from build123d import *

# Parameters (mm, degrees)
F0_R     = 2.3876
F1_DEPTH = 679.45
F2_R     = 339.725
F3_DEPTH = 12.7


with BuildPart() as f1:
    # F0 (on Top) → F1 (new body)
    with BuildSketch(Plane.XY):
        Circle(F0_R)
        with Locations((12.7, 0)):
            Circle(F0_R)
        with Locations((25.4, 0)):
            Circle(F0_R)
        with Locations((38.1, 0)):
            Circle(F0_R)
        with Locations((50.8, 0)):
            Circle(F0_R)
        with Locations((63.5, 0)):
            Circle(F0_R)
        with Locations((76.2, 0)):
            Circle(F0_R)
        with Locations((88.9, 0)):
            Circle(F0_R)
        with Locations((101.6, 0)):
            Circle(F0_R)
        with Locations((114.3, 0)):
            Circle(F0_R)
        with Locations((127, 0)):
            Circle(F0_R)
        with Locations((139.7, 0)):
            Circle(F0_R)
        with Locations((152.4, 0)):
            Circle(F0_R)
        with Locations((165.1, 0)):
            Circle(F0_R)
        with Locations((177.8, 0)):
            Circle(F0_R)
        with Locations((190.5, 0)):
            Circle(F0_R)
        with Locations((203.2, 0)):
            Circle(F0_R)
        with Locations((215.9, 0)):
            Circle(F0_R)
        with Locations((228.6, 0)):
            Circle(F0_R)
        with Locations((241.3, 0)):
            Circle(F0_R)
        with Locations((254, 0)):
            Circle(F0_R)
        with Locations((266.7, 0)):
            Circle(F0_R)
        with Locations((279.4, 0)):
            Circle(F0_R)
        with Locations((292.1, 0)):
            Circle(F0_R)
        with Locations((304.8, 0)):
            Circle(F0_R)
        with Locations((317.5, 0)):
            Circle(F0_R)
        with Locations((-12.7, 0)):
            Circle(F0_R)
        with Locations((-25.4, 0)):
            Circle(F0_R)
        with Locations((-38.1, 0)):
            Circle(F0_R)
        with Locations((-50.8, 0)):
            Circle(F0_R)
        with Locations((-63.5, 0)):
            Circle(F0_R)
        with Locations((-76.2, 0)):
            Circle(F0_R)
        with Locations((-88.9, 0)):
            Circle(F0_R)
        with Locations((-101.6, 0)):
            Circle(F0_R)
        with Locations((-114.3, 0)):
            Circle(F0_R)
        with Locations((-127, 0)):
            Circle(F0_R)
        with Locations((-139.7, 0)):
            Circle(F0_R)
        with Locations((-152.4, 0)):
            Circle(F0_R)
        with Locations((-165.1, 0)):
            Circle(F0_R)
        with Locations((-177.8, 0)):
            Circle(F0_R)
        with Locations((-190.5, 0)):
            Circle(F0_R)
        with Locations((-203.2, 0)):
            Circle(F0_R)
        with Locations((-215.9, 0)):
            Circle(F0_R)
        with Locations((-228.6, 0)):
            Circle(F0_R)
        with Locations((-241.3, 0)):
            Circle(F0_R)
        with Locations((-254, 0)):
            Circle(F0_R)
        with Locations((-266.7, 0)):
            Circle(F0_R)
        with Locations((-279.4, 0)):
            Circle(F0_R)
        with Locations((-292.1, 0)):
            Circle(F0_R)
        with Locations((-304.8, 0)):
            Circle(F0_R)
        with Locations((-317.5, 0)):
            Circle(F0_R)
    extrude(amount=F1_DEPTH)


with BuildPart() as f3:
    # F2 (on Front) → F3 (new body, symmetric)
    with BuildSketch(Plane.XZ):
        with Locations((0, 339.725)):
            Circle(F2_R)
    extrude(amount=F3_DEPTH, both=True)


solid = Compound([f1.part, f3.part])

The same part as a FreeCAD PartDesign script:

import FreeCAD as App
import Part
import Sketcher

V = App.Vector
Q = App.Units.Quantity

doc = App.newDocument("Part")
body = doc.addObject("PartDesign::Body", "Body")
body.AllowCompound = True

# Sketch on XY plane
sketch1 = body.newObject("Sketcher::SketchObject", "Sketch")
sketch1.AttachmentSupport = (doc.getObject("XY_Plane"), [""])
sketch1.MapMode = "FlatFace"
sketch1.addGeometry([
    Part.Circle(V(0, 0, 0), V(0, 0, 1), 2.4),  # 0
    Part.Circle(V(12.7, 0, 0), V(0, 0, 1), 2.4),  # 1
    Part.Circle(V(25.4, 0, 0), V(0, 0, 1), 2.4),  # 2
    Part.Circle(V(38.1, 0, 0), V(0, 0, 1), 2.4),  # 3
    Part.Circle(V(50.8, 0, 0), V(0, 0, 1), 2.4),  # 4
    Part.Circle(V(63.5, 0, 0), V(0, 0, 1), 2.4),  # 5
    Part.Circle(V(76.2, 0, 0), V(0, 0, 1), 2.4),  # 6
    Part.Circle(V(88.9, 0, 0), V(0, 0, 1), 2.4),  # 7
    Part.Circle(V(101.6, 0, 0), V(0, 0, 1), 2.4),  # 8
    Part.Circle(V(114.3, 0, 0), V(0, 0, 1), 2.4),  # 9
    Part.Circle(V(127, 0, 0), V(0, 0, 1), 2.4),  # 10
    Part.Circle(V(139.7, 0, 0), V(0, 0, 1), 2.4),  # 11
    Part.Circle(V(152.4, 0, 0), V(0, 0, 1), 2.4),  # 12
    Part.Circle(V(165.1, 0, 0), V(0, 0, 1), 2.4),  # 13
    Part.Circle(V(177.8, 0, 0), V(0, 0, 1), 2.4),  # 14
    Part.Circle(V(190.5, 0, 0), V(0, 0, 1), 2.4),  # 15
    Part.Circle(V(203.2, 0, 0), V(0, 0, 1), 2.4),  # 16
    Part.Circle(V(215.9, 0, 0), V(0, 0, 1), 2.4),  # 17
    Part.Circle(V(228.6, 0, 0), V(0, 0, 1), 2.4),  # 18
    Part.Circle(V(241.3, 0, 0), V(0, 0, 1), 2.4),  # 19
    Part.Circle(V(254, 0, 0), V(0, 0, 1), 2.4),  # 20
    Part.Circle(V(266.7, 0, 0), V(0, 0, 1), 2.4),  # 21
    Part.Circle(V(279.4, 0, 0), V(0, 0, 1), 2.4),  # 22
    Part.Circle(V(292.1, 0, 0), V(0, 0, 1), 2.4),  # 23
    Part.Circle(V(304.8, 0, 0), V(0, 0, 1), 2.4),  # 24
    Part.Circle(V(317.5, 0, 0), V(0, 0, 1), 2.4),  # 25
    Part.Circle(V(-12.7, 0, 0), V(0, 0, 1), 2.4),  # 26
    Part.Circle(V(-25.4, 0, 0), V(0, 0, 1), 2.4),  # 27
    Part.Circle(V(-38.1, 0, 0), V(0, 0, 1), 2.4),  # 28
    Part.Circle(V(-50.8, 0, 0), V(0, 0, 1), 2.4),  # 29
    Part.Circle(V(-63.5, 0, 0), V(0, 0, 1), 2.4),  # 30
    Part.Circle(V(-76.2, 0, 0), V(0, 0, 1), 2.4),  # 31
    Part.Circle(V(-88.9, 0, 0), V(0, 0, 1), 2.4),  # 32
    Part.Circle(V(-101.6, 0, 0), V(0, 0, 1), 2.4),  # 33
    Part.Circle(V(-114.3, 0, 0), V(0, 0, 1), 2.4),  # 34
    Part.Circle(V(-127, 0, 0), V(0, 0, 1), 2.4),  # 35
    Part.Circle(V(-139.7, 0, 0), V(0, 0, 1), 2.4),  # 36
    Part.Circle(V(-152.4, 0, 0), V(0, 0, 1), 2.4),  # 37
    Part.Circle(V(-165.1, 0, 0), V(0, 0, 1), 2.4),  # 38
    Part.Circle(V(-177.8, 0, 0), V(0, 0, 1), 2.4),  # 39
    Part.Circle(V(-190.5, 0, 0), V(0, 0, 1), 2.4),  # 40
    Part.Circle(V(-203.2, 0, 0), V(0, 0, 1), 2.4),  # 41
    Part.Circle(V(-215.9, 0, 0), V(0, 0, 1), 2.4),  # 42
    Part.Circle(V(-228.6, 0, 0), V(0, 0, 1), 2.4),  # 43
    Part.Circle(V(-241.3, 0, 0), V(0, 0, 1), 2.4),  # 44
    Part.Circle(V(-254, 0, 0), V(0, 0, 1), 2.4),  # 45
    Part.Circle(V(-266.7, 0, 0), V(0, 0, 1), 2.4),  # 46
    Part.Circle(V(-279.4, 0, 0), V(0, 0, 1), 2.4),  # 47
    Part.Circle(V(-292.1, 0, 0), V(0, 0, 1), 2.4),  # 48
    Part.Circle(V(-304.8, 0, 0), V(0, 0, 1), 2.4),  # 49
    Part.Circle(V(-317.5, 0, 0), V(0, 0, 1), 2.4),  # 50
], False)
sketch1.addConstraint([
    Sketcher.Constraint("Coincident", 0, 3, -1, 1),
    Sketcher.Constraint("Equal", 0, 1),
    Sketcher.Constraint("Equal", 1, 2),
    Sketcher.Constraint("Equal", 2, 3),
    Sketcher.Constraint("Equal", 3, 4),
    Sketcher.Constraint("Equal", 4, 5),
    Sketcher.Constraint("Equal", 5, 6),
    Sketcher.Constraint("Equal", 6, 7),
    Sketcher.Constraint("Equal", 7, 8),
    Sketcher.Constraint("Equal", 8, 9),
    Sketcher.Constraint("Equal", 9, 10),
    Sketcher.Constraint("Equal", 10, 11),
    Sketcher.Constraint("Equal", 11, 12),
    Sketcher.Constraint("Equal", 12, 13),
    Sketcher.Constraint("Equal", 13, 14),
    Sketcher.Constraint("Equal", 14, 15),
    Sketcher.Constraint("Equal", 15, 16),
    Sketcher.Constraint("Equal", 16, 17),
    Sketcher.Constraint("Equal", 17, 18),
    Sketcher.Constraint("Equal", 18, 19),
    Sketcher.Constraint("Equal", 19, 20),
    Sketcher.Constraint("Equal", 20, 21),
    Sketcher.Constraint("Equal", 21, 22),
    Sketcher.Constraint("Equal", 22, 23),
    Sketcher.Constraint("Equal", 23, 24),
    Sketcher.Constraint("Equal", 24, 25),
    Sketcher.Constraint("Equal", 25, 26),
    Sketcher.Constraint("Equal", 26, 27),
    Sketcher.Constraint("Equal", 27, 28),
    Sketcher.Constraint("Equal", 28, 29),
    Sketcher.Constraint("Equal", 29, 30),
    Sketcher.Constraint("Equal", 30, 31),
    Sketcher.Constraint("Equal", 31, 32),
    Sketcher.Constraint("Equal", 32, 33),
    Sketcher.Constraint("Equal", 33, 34),
    Sketcher.Constraint("Equal", 34, 35),
    Sketcher.Constraint("Equal", 35, 36),
    Sketcher.Constraint("Equal", 36, 37),
    Sketcher.Constraint("Equal", 37, 38),
    Sketcher.Constraint("Equal", 38, 39),
    Sketcher.Constraint("Equal", 39, 40),
    Sketcher.Constraint("Equal", 40, 41),
    Sketcher.Constraint("Equal", 41, 42),
    Sketcher.Constraint("Equal", 42, 43),
    Sketcher.Constraint("Equal", 43, 44),
    Sketcher.Constraint("Equal", 44, 45),
    Sketcher.Constraint("Equal", 45, 46),
    Sketcher.Constraint("Equal", 46, 47),
    Sketcher.Constraint("Equal", 47, 48),
    Sketcher.Constraint("Equal", 48, 49),
    Sketcher.Constraint("Equal", 49, 50),
    Sketcher.Constraint("Symmetric", 1, 3, 26, 3, -1, 1),
    Sketcher.Constraint("Symmetric", 2, 3, 27, 3, -1, 1),
    Sketcher.Constraint("Symmetric", 3, 3, 28, 3, -1, 1),
    Sketcher.Constraint("Symmetric", 4, 3, 29, 3, -1, 1),
    Sketcher.Constraint("Symmetric", 5, 3, 30, 3, -1, 1),
    Sketcher.Constraint("Symmetric", 6, 3, 31, 3, -1, 1),
    Sketcher.Constraint("Symmetric", 7, 3, 32, 3, -1, 1),
    Sketcher.Constraint("Symmetric", 8, 3, 33, 3, -1, 1),
    Sketcher.Constraint("Symmetric", 9, 3, 34, 3, -1, 1),
    Sketcher.Constraint("Symmetric", 10, 3, 35, 3, -1, 1),
    Sketcher.Constraint("Symmetric", 11, 3, 36, 3, -1, 1),
    Sketcher.Constraint("Symmetric", 12, 3, 37, 3, -1, 1),
    Sketcher.Constraint("Symmetric", 13, 3, 38, 3, -1, 1),
    Sketcher.Constraint("Symmetric", 14, 3, 39, 3, -1, 1),
    Sketcher.Constraint("Symmetric", 15, 3, 40, 3, -1, 1),
    Sketcher.Constraint("Symmetric", 16, 3, 41, 3, -1, 1),
    Sketcher.Constraint("Symmetric", 17, 3, 42, 3, -1, 1),
    Sketcher.Constraint("Symmetric", 18, 3, 43, 3, -1, 1),
    Sketcher.Constraint("Symmetric", 19, 3, 44, 3, -1, 1),
    Sketcher.Constraint("Symmetric", 20, 3, 45, 3, -1, 1),
    Sketcher.Constraint("Symmetric", 21, 3, 46, 3, -1, 1),
    Sketcher.Constraint("Symmetric", 22, 3, 47, 3, -1, 1),
    Sketcher.Constraint("Symmetric", 23, 3, 48, 3, -1, 1),
    Sketcher.Constraint("Symmetric", 24, 3, 49, 3, -1, 1),
    Sketcher.Constraint("Symmetric", 25, 3, 50, 3, -1, 1),
    Sketcher.Constraint("PointOnObject", 1, 3, -1),
    Sketcher.Constraint("PointOnObject", 2, 3, -1),
    Sketcher.Constraint("PointOnObject", 3, 3, -1),
    Sketcher.Constraint("PointOnObject", 4, 3, -1),
    Sketcher.Constraint("PointOnObject", 5, 3, -1),
    Sketcher.Constraint("PointOnObject", 6, 3, -1),
    Sketcher.Constraint("PointOnObject", 7, 3, -1),
    Sketcher.Constraint("PointOnObject", 8, 3, -1),
    Sketcher.Constraint("PointOnObject", 9, 3, -1),
    Sketcher.Constraint("PointOnObject", 10, 3, -1),
    Sketcher.Constraint("PointOnObject", 11, 3, -1),
    Sketcher.Constraint("PointOnObject", 12, 3, -1),
    Sketcher.Constraint("PointOnObject", 13, 3, -1),
    Sketcher.Constraint("PointOnObject", 14, 3, -1),
    Sketcher.Constraint("PointOnObject", 15, 3, -1),
    Sketcher.Constraint("PointOnObject", 16, 3, -1),
    Sketcher.Constraint("PointOnObject", 17, 3, -1),
    Sketcher.Constraint("PointOnObject", 18, 3, -1),
    Sketcher.Constraint("PointOnObject", 19, 3, -1),
    Sketcher.Constraint("PointOnObject", 20, 3, -1),
    Sketcher.Constraint("PointOnObject", 21, 3, -1),
    Sketcher.Constraint("PointOnObject", 22, 3, -1),
    Sketcher.Constraint("PointOnObject", 23, 3, -1),
    Sketcher.Constraint("PointOnObject", 24, 3, -1),
    Sketcher.Constraint("PointOnObject", 25, 3, -1),
    Sketcher.Constraint("Diameter", 0, Q("0.188 in")),
    Sketcher.Constraint("DistanceX", -1, 1, 2, 3, Q("1 in")),
    Sketcher.Constraint("DistanceX", -1, 1, 4, 3, Q("2 in")),
    Sketcher.Constraint("DistanceX", -1, 1, 6, 3, Q("3 in")),
    Sketcher.Constraint("DistanceX", -1, 1, 8, 3, Q("4 in")),
    Sketcher.Constraint("DistanceX", -1, 1, 10, 3, Q("5 in")),
    Sketcher.Constraint("DistanceX", -1, 1, 12, 3, Q("6 in")),
    Sketcher.Constraint("DistanceX", -1, 1, 14, 3, Q("7 in")),
    Sketcher.Constraint("DistanceX", -1, 1, 16, 3, Q("8 in")),
    Sketcher.Constraint("DistanceX", -1, 1, 18, 3, Q("9 in")),
    Sketcher.Constraint("DistanceX", -1, 1, 20, 3, Q("10 in")),
    Sketcher.Constraint("DistanceX", -1, 1, 22, 3, Q("11 in")),
    Sketcher.Constraint("DistanceX", -1, 1, 24, 3, Q("12 in")),
    Sketcher.Constraint("DistanceX", 1, 3, 3, 3, Q("1 in")),
    Sketcher.Constraint("DistanceX", 3, 3, 5, 3, Q("1 in")),
    Sketcher.Constraint("DistanceX", 5, 3, 7, 3, Q("1 in")),
    Sketcher.Constraint("DistanceX", 7, 3, 9, 3, Q("1 in")),
    Sketcher.Constraint("DistanceX", 9, 3, 11, 3, Q("1 in")),
    Sketcher.Constraint("DistanceX", 11, 3, 13, 3, Q("1 in")),
    Sketcher.Constraint("DistanceX", 13, 3, 15, 3, Q("1 in")),
    Sketcher.Constraint("DistanceX", 15, 3, 17, 3, Q("1 in")),
    Sketcher.Constraint("DistanceX", 17, 3, 19, 3, Q("1 in")),
    Sketcher.Constraint("DistanceX", 19, 3, 21, 3, Q("1 in")),
    Sketcher.Constraint("DistanceX", 21, 3, 23, 3, Q("1 in")),
    Sketcher.Constraint("DistanceX", 23, 3, 25, 3, Q("1 in")),
    Sketcher.Constraint("DistanceX", 26, 3, 1, 3, Q("1 in")),
])
pad1 = body.newObject("PartDesign::Pad", "Pad")
pad1.Profile = sketch1
pad1.Length = Q("26.75 in")
body2 = doc.addObject("PartDesign::Body", "Body001")

# Sketch on XZ plane
sketch2 = body2.newObject("Sketcher::SketchObject", "Sketch001")
sketch2.AttachmentSupport = (doc.getObject("XZ_Plane001"), [""])
sketch2.MapMode = "FlatFace"
sketch2.addGeometry(Part.Circle(V(0, 340, 0), V(0, 0, 1), 340), False)
sketch2.addConstraint([
    Sketcher.Constraint("PointOnObject", 0, 3, -2),
    Sketcher.Constraint("Diameter", 0, Q("26.75 in")),
    Sketcher.Constraint("DistanceY", -1, 1, 0, 3, Q("13.375 in")),
])
pad2 = body2.newObject("PartDesign::Pad", "Pad001")
pad2.Profile = sketch2
pad2.Length = Q("1 in")
pad2.Midplane = True

doc.recompute()
